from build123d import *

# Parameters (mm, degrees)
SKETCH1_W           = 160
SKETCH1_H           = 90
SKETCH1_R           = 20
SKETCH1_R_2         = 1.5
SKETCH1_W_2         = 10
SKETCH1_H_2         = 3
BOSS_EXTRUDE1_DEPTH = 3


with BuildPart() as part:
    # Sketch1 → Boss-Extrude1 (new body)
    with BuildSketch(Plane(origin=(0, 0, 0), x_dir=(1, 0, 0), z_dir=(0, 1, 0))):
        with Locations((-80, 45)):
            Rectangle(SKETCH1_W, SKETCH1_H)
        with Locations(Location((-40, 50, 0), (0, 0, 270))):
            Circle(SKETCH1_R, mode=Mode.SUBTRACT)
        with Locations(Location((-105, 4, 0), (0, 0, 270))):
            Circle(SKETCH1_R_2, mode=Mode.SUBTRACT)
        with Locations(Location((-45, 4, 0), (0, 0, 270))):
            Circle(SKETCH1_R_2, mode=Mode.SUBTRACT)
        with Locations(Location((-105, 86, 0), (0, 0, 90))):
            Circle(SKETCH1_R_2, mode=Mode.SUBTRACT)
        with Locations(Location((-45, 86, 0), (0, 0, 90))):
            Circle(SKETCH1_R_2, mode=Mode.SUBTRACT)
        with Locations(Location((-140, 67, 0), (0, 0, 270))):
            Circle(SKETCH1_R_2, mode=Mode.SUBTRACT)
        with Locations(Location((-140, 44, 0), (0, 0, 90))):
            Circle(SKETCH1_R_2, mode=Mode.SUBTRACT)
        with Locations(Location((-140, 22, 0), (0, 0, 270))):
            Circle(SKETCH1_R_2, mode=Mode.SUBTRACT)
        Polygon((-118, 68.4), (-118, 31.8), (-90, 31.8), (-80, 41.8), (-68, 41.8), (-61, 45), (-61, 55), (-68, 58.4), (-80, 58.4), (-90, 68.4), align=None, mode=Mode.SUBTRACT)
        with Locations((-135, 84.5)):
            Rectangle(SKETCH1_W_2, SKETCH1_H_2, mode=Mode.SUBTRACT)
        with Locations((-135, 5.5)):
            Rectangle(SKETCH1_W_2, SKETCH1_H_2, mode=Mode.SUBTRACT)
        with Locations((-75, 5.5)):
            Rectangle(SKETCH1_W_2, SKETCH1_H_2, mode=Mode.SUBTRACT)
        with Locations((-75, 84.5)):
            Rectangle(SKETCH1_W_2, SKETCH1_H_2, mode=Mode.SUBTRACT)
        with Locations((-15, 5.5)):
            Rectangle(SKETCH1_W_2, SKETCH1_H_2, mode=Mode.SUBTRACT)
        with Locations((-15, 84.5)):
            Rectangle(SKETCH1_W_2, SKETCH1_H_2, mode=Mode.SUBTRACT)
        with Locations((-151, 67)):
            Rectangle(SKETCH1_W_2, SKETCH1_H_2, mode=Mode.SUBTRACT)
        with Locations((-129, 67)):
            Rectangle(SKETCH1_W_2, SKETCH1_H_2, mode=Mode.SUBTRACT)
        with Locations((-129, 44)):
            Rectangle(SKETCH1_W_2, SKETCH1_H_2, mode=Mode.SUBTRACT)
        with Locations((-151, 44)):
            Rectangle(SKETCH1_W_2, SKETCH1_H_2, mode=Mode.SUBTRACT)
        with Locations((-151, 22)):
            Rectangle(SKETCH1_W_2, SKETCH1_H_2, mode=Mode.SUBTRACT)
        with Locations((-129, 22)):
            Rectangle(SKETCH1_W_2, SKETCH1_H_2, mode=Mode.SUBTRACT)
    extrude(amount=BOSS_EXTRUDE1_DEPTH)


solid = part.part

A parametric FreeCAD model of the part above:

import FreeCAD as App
import Part
import Sketcher
from FreeCAD import Vector


def add_polygon(sketch, points):
    """Adds a closed chain of lines whose ends are joined by coincident constraints."""
    first, n = sketch.GeometryCount, len(points)
    for a, b in zip(points, points[1:] + points[:1]):
        sketch.addGeometry(Part.LineSegment(App.Vector(*a, 0), App.Vector(*b, 0)), False)
    for i in range(n):
        sketch.addConstraint(Sketcher.Constraint("Coincident", first + i, 2, first + (i + 1) % n, 1))

doc = App.newDocument("Part")
body = doc.addObject("PartDesign::Body", "Body")

sketch1 = doc.addObject("Sketcher::SketchObject", "Sketch")
body.addObject(sketch1)
sketch1.AttachmentSupport = (doc.XZ_Plane, [""])
sketch1.MapMode = "FlatFace"
add_polygon(sketch1, [(-160, -90), (-160, 0), (0, 0), (0, -90)])
add_polygon(sketch1, [(-130, -4), (-140, -4), (-140, -7), (-130, -7)])
add_polygon(sketch1, [(-146, -20.5), (-156, -20.5), (-156, -23.5), (-146, -23.5)])
sketch1.addGeometry(Part.Circle(Vector(-140, -22, 0), Vector(0, 0, 1), 1.5), False)
add_polygon(sketch1, [(-124, -20.5), (-134, -20.5), (-134, -23.5), (-124, -23.5)])
sketch1.addGeometry(Part.Circle(Vector(-105, -4, 0), Vector(0, 0, 1), 1.5), False)
add_polygon(sketch1, [(-146, -42.5), (-156, -42.5), (-156, -45.5), (-146, -45.5)])
sketch1.addGeometry(Part.Circle(Vector(-140, -44, 0), Vector(0, 0, 1), 1.5), False)
add_polygon(sketch1, [(-124, -42.5), (-134, -42.5), (-134, -45.5), (-124, -45.5)])
add_polygon(sketch1, [(-70, -4), (-80, -4), (-80, -7), (-70, -7)])
sketch1.addGeometry(Part.Circle(Vector(-45, -4, 0), Vector(0, 0, 1), 1.5), False)
add_polygon(sketch1, [(-10, -4), (-20, -4), (-20, -7), (-10, -7)])
add_polygon(sketch1, [(-118, -31.8), (-118, -68.4), (-90, -68.4), (-80, -58.4), (-68, -58.4), (-61, -55), (-61, -45), (-68, -41.8), (-80, -41.8), (-90, -31.8)])
add_polygon(sketch1, [(-146, -65.5), (-156, -65.5), (-156, -68.5), (-146, -68.5)])
sketch1.addGeometry(Part.Circle(Vector(-140, -67, 0), Vector(0, 0, 1), 1.5), False)
add_polygon(sketch1, [(-124, -65.5), (-134, -65.5), (-134, -68.5), (-124, -68.5)])
add_polygon(sketch1, [(-130, -83), (-140, -83), (-140, -86), (-130, -86)])
sketch1.addGeometry(Part.Circle(Vector(-105, -86, 0), Vector(0, 0, 1), 1.5), False)
sketch1.addGeometry(Part.Circle(Vector(-40, -50, 0), Vector(0, 0, 1), 20), False)
add_polygon(sketch1, [(-70, -83), (-80, -83), (-80, -86), (-70, -86)])
sketch1.addGeometry(Part.Circle(Vector(-45, -86, 0), Vector(0, 0, 1), 1.5), False)
add_polygon(sketch1, [(-10, -83), (-20, -83), (-20, -86), (-10, -86)])
sketch1.addConstraint([
    Sketcher.Constraint("Vertical", 0),
    Sketcher.Constraint("Horizontal", 1),
    Sketcher.Constraint("Vertical", 2),
    Sketcher.Constraint("Horizontal", 3),
    Sketcher.Constraint("Horizontal", 4),
    Sketcher.Constraint("Vertical", 5),
    Sketcher.Constraint("Horizontal", 6),
    Sketcher.Constraint("Vertical", 7),
    Sketcher.Constraint("Horizontal", 8),
    Sketcher.Constraint("Vertical", 9),
    Sketcher.Constraint("Horizontal", 10),
    Sketcher.Constraint("Vertical", 11),
    Sketcher.Constraint("Horizontal", 13),
    Sketcher.Constraint("Vertical", 14),
    Sketcher.Constraint("Horizontal", 15),
    Sketcher.Constraint("Vertical", 16),
    Sketcher.Constraint("Horizontal", 18),
    Sketcher.Constraint("Vertical", 19),
    Sketcher.Constraint("Horizontal", 20),
    Sketcher.Constraint("Vertical", 21),
    Sketcher.Constraint("Horizontal", 23),
    Sketcher.Constraint("Vertical", 24),
    Sketcher.Constraint("Horizontal", 25),
    Sketcher.Constraint("Vertical", 26),
    Sketcher.Constraint("Horizontal", 27),
    Sketcher.Constraint("Vertical", 28),
    Sketcher.Constraint("Horizontal", 29),
    Sketcher.Constraint("Vertical", 30),
    Sketcher.Constraint("Horizontal", 32),
    Sketcher.Constraint("Vertical", 33),
    Sketcher.Constraint("Horizontal", 34),
    Sketcher.Constraint("Vertical", 35),
    Sketcher.Constraint("Vertical", 36),
    Sketcher.Constraint("Horizontal", 37),
    Sketcher.Constraint("Horizontal", 39),
    Sketcher.Constraint("Vertical", 41),
    Sketcher.Constraint("Horizontal", 43),
    Sketcher.Constraint("Horizontal", 45),
    Sketcher.Constraint("Horizontal", 46),
    Sketcher.Constraint("Vertical", 47),
    Sketcher.Constraint("Horizontal", 48),
    Sketcher.Constraint("Vertical", 49),
    Sketcher.Constraint("Horizontal", 51),
    Sketcher.Constraint("Vertical", 52),
    Sketcher.Constraint("Horizontal", 53),
    Sketcher.Constraint("Vertical", 54),
    Sketcher.Constraint("Horizontal", 55),
    Sketcher.Constraint("Vertical", 56),
    Sketcher.Constraint("Horizontal", 57),
    Sketcher.Constraint("Vertical", 58),
    Sketcher.Constraint("Horizontal", 61),
    Sketcher.Constraint("Vertical", 62),
    Sketcher.Constraint("Horizontal", 63),
    Sketcher.Constraint("Vertical", 64),
    Sketcher.Constraint("Horizontal", 66),
    Sketcher.Constraint("Vertical", 67),
    Sketcher.Constraint("Horizontal", 68),
    Sketcher.Constraint("Vertical", 69),
    Sketcher.Constraint("Coincident", 1, 2, -1, 1),
    Sketcher.Constraint("Equal", 12, 17),
    Sketcher.Constraint("Equal", 17, 22),
    Sketcher.Constraint("Equal", 22, 31),
    Sketcher.Constraint("Equal", 31, 50),
    Sketcher.Constraint("Equal", 50, 59),
    Sketcher.Constraint("Equal", 59, 65),
    Sketcher.Constraint("Perpendicular", 38, 44),
    Sketcher.Constraint("Horizontal", 17, 3, 31, 3),
    Sketcher.Constraint("Horizontal", 59, 3, 65, 3),
    Sketcher.Constraint("Horizontal", 31, 3, 4, 2),
    Sketcher.Constraint("Horizontal", 11, 2, 13, 2),
    Sketcher.Constraint("Horizontal", 10, 2, 14, 2),
    Sketcher.Constraint("Horizontal", 21, 2, 23, 2),
    Sketcher.Constraint("Horizontal", 20, 2, 24, 2),
    Sketcher.Constraint("Horizontal", 7, 2, 27, 2),
    Sketcher.Constraint("Horizontal", 6, 2, 28, 2),
    Sketcher.Constraint("Horizontal", 30, 2, 32, 2),
    Sketcher.Constraint("Horizontal", 29, 2, 33, 2),
    Sketcher.Constraint("Horizontal", 49, 2, 51, 2),
    Sketcher.Constraint("Horizontal", 48, 2, 52, 2),
    Sketcher.Constraint("Horizontal", 65, 3, 56, 2),
    Sketcher.Constraint("Horizontal", 58, 2, 61, 2),
    Sketcher.Constraint("Horizontal", 57, 2, 62, 2),
    Sketcher.Constraint("Horizontal", 64, 2, 66, 2),
    Sketcher.Constraint("Horizontal", 63, 2, 67, 2),
    Sketcher.Constraint("Vertical", 12, 3, 22, 3),
    Sketcher.Constraint("Vertical", 22, 3, 50, 3),
    Sketcher.Constraint("Vertical", 17, 3, 59, 3),
    Sketcher.Constraint("Vertical", 31, 3, 65, 3),
    Sketcher.Constraint("Vertical", 50, 3, 4, 2),
    Sketcher.Constraint("Vertical", 9, 2, 18, 2),
    Sketcher.Constraint("Vertical", 11, 2, 20, 2),
    Sketcher.Constraint("Vertical", 14, 2, 23, 2),
    Sketcher.Constraint("Vertical", 16, 2, 25, 2),
    Sketcher.Constraint("Vertical", 28, 2, 38, 2),
    Sketcher.Constraint("Vertical", 39, 2, 42, 2),
    Sketcher.Constraint("Vertical", 38, 2, 43, 2),
    Sketcher.Constraint("Vertical", 37, 2, 44, 2),
    Sketcher.Constraint("Vertical", 19, 2, 46, 2),
    Sketcher.Constraint("Vertical", 21, 2, 48, 2),
    Sketcher.Constraint("Vertical", 24, 2, 51, 2),
    Sketcher.Constraint("Vertical", 26, 2, 53, 2),
    Sketcher.Constraint("Vertical", 5, 2, 55, 2),
    Sketcher.Constraint("Vertical", 7, 2, 57, 2),
    Sketcher.Constraint("Vertical", 43, 2, 61, 2),
    Sketcher.Constraint("Vertical", 30, 2, 63, 2),
    Sketcher.Constraint("Vertical", 33, 2, 66, 2),
    Sketcher.Constraint("Vertical", 35, 2, 68, 2),
    Sketcher.Constraint("Equal", 6, 8),
    Sketcher.Constraint("Equal", 10, 13),
    Sketcher.Constraint("Equal", 25, 27),
    Sketcher.Constraint("Equal", 29, 32),
    Sketcher.Constraint("Equal", 7, 9),
    Sketcher.Constraint("Equal", 16, 19),
    Sketcher.Constraint("Equal", 68, 41),
    Sketcher.Constraint("Equal", 35, 47),
    Sketcher.Constraint("Equal", 54, 56),
    Sketcher.Constraint("Equal", 38, 44),
    Sketcher.Constraint("Diameter", 12, 3.0),
    Sketcher.Constraint("Diameter", 60, 40.0),
    Sketcher.Constraint("DistanceX", 1, 1, 1, 2, 160.0),
    Sketcher.Constraint("DistanceX", 4, 2, 4, 1, 10.0),
    Sketcher.Constraint("DistanceX", 37, 1, 37, 2, 28.0),
    Sketcher.Constraint("DistanceX", 39, 1, 39, 2, 12.0),
    Sketcher.Constraint("DistanceY", 0, 1, 0, 2, 90.0),
    Sketcher.Constraint("DistanceY", 5, 2, 5, 1, 3.0),
    Sketcher.Constraint("DistanceY", 36, 2, 36, 1, 36.6),
    Sketcher.Constraint("DistanceX", 12, 3, -1, 1, 140.0),
    Sketcher.Constraint("DistanceY", 12, 3, -1, 1, 22.0),
    Sketcher.Constraint("DistanceX", 17, 3, -1, 1, 105.0),
    Sketcher.Constraint("DistanceY", 17, 3, -1, 1, 4.0),
    Sketcher.Constraint("DistanceY", 22, 3, -1, 1, 44.0),
    Sketcher.Constraint("DistanceX", 31, 3, -1, 1, 45.0),
    Sketcher.Constraint("DistanceY", 50, 3, -1, 1, 67.0),
    Sketcher.Constraint("DistanceY", 59, 3, -1, 1, 86.0),
    Sketcher.Constraint("DistanceX", 60, 3, -1, 1, 40.0),
    Sketcher.Constraint("DistanceY", 60, 3, -1, 1, 50.0),
    Sketcher.Constraint("DistanceX", 8, 2, -1, 1, 156.0),
    Sketcher.Constraint("DistanceX", 13, 2, -1, 1, 134.0),
    Sketcher.Constraint("DistanceX", 27, 2, -1, 1, 80.0),
    Sketcher.Constraint("DistanceX", 32, 2, -1, 1, 20.0),
    Sketcher.Constraint("DistanceX", 36, 2, -1, 1, 118.0),
    Sketcher.Constraint("DistanceX", 40, 2, -1, 1, 61.0),
    Sketcher.Constraint("DistanceY", 40, 2, -1, 1, 55.0),
    Sketcher.Constraint("DistanceY", 8, 2, -1, 1, 20.5),
    Sketcher.Constraint("DistanceY", 18, 2, -1, 1, 42.5),
    Sketcher.Constraint("DistanceY", 36, 2, -1, 1, 68.4),
    Sketcher.Constraint("DistanceY", 46, 2, -1, 1, 65.5),
])
pad1 = doc.addObject("PartDesign::Pad", "Pad")
body.addObject(pad1)
pad1.Profile = sketch1
pad1.Length = 3
pad1.Reversed = True

doc.recompute()
